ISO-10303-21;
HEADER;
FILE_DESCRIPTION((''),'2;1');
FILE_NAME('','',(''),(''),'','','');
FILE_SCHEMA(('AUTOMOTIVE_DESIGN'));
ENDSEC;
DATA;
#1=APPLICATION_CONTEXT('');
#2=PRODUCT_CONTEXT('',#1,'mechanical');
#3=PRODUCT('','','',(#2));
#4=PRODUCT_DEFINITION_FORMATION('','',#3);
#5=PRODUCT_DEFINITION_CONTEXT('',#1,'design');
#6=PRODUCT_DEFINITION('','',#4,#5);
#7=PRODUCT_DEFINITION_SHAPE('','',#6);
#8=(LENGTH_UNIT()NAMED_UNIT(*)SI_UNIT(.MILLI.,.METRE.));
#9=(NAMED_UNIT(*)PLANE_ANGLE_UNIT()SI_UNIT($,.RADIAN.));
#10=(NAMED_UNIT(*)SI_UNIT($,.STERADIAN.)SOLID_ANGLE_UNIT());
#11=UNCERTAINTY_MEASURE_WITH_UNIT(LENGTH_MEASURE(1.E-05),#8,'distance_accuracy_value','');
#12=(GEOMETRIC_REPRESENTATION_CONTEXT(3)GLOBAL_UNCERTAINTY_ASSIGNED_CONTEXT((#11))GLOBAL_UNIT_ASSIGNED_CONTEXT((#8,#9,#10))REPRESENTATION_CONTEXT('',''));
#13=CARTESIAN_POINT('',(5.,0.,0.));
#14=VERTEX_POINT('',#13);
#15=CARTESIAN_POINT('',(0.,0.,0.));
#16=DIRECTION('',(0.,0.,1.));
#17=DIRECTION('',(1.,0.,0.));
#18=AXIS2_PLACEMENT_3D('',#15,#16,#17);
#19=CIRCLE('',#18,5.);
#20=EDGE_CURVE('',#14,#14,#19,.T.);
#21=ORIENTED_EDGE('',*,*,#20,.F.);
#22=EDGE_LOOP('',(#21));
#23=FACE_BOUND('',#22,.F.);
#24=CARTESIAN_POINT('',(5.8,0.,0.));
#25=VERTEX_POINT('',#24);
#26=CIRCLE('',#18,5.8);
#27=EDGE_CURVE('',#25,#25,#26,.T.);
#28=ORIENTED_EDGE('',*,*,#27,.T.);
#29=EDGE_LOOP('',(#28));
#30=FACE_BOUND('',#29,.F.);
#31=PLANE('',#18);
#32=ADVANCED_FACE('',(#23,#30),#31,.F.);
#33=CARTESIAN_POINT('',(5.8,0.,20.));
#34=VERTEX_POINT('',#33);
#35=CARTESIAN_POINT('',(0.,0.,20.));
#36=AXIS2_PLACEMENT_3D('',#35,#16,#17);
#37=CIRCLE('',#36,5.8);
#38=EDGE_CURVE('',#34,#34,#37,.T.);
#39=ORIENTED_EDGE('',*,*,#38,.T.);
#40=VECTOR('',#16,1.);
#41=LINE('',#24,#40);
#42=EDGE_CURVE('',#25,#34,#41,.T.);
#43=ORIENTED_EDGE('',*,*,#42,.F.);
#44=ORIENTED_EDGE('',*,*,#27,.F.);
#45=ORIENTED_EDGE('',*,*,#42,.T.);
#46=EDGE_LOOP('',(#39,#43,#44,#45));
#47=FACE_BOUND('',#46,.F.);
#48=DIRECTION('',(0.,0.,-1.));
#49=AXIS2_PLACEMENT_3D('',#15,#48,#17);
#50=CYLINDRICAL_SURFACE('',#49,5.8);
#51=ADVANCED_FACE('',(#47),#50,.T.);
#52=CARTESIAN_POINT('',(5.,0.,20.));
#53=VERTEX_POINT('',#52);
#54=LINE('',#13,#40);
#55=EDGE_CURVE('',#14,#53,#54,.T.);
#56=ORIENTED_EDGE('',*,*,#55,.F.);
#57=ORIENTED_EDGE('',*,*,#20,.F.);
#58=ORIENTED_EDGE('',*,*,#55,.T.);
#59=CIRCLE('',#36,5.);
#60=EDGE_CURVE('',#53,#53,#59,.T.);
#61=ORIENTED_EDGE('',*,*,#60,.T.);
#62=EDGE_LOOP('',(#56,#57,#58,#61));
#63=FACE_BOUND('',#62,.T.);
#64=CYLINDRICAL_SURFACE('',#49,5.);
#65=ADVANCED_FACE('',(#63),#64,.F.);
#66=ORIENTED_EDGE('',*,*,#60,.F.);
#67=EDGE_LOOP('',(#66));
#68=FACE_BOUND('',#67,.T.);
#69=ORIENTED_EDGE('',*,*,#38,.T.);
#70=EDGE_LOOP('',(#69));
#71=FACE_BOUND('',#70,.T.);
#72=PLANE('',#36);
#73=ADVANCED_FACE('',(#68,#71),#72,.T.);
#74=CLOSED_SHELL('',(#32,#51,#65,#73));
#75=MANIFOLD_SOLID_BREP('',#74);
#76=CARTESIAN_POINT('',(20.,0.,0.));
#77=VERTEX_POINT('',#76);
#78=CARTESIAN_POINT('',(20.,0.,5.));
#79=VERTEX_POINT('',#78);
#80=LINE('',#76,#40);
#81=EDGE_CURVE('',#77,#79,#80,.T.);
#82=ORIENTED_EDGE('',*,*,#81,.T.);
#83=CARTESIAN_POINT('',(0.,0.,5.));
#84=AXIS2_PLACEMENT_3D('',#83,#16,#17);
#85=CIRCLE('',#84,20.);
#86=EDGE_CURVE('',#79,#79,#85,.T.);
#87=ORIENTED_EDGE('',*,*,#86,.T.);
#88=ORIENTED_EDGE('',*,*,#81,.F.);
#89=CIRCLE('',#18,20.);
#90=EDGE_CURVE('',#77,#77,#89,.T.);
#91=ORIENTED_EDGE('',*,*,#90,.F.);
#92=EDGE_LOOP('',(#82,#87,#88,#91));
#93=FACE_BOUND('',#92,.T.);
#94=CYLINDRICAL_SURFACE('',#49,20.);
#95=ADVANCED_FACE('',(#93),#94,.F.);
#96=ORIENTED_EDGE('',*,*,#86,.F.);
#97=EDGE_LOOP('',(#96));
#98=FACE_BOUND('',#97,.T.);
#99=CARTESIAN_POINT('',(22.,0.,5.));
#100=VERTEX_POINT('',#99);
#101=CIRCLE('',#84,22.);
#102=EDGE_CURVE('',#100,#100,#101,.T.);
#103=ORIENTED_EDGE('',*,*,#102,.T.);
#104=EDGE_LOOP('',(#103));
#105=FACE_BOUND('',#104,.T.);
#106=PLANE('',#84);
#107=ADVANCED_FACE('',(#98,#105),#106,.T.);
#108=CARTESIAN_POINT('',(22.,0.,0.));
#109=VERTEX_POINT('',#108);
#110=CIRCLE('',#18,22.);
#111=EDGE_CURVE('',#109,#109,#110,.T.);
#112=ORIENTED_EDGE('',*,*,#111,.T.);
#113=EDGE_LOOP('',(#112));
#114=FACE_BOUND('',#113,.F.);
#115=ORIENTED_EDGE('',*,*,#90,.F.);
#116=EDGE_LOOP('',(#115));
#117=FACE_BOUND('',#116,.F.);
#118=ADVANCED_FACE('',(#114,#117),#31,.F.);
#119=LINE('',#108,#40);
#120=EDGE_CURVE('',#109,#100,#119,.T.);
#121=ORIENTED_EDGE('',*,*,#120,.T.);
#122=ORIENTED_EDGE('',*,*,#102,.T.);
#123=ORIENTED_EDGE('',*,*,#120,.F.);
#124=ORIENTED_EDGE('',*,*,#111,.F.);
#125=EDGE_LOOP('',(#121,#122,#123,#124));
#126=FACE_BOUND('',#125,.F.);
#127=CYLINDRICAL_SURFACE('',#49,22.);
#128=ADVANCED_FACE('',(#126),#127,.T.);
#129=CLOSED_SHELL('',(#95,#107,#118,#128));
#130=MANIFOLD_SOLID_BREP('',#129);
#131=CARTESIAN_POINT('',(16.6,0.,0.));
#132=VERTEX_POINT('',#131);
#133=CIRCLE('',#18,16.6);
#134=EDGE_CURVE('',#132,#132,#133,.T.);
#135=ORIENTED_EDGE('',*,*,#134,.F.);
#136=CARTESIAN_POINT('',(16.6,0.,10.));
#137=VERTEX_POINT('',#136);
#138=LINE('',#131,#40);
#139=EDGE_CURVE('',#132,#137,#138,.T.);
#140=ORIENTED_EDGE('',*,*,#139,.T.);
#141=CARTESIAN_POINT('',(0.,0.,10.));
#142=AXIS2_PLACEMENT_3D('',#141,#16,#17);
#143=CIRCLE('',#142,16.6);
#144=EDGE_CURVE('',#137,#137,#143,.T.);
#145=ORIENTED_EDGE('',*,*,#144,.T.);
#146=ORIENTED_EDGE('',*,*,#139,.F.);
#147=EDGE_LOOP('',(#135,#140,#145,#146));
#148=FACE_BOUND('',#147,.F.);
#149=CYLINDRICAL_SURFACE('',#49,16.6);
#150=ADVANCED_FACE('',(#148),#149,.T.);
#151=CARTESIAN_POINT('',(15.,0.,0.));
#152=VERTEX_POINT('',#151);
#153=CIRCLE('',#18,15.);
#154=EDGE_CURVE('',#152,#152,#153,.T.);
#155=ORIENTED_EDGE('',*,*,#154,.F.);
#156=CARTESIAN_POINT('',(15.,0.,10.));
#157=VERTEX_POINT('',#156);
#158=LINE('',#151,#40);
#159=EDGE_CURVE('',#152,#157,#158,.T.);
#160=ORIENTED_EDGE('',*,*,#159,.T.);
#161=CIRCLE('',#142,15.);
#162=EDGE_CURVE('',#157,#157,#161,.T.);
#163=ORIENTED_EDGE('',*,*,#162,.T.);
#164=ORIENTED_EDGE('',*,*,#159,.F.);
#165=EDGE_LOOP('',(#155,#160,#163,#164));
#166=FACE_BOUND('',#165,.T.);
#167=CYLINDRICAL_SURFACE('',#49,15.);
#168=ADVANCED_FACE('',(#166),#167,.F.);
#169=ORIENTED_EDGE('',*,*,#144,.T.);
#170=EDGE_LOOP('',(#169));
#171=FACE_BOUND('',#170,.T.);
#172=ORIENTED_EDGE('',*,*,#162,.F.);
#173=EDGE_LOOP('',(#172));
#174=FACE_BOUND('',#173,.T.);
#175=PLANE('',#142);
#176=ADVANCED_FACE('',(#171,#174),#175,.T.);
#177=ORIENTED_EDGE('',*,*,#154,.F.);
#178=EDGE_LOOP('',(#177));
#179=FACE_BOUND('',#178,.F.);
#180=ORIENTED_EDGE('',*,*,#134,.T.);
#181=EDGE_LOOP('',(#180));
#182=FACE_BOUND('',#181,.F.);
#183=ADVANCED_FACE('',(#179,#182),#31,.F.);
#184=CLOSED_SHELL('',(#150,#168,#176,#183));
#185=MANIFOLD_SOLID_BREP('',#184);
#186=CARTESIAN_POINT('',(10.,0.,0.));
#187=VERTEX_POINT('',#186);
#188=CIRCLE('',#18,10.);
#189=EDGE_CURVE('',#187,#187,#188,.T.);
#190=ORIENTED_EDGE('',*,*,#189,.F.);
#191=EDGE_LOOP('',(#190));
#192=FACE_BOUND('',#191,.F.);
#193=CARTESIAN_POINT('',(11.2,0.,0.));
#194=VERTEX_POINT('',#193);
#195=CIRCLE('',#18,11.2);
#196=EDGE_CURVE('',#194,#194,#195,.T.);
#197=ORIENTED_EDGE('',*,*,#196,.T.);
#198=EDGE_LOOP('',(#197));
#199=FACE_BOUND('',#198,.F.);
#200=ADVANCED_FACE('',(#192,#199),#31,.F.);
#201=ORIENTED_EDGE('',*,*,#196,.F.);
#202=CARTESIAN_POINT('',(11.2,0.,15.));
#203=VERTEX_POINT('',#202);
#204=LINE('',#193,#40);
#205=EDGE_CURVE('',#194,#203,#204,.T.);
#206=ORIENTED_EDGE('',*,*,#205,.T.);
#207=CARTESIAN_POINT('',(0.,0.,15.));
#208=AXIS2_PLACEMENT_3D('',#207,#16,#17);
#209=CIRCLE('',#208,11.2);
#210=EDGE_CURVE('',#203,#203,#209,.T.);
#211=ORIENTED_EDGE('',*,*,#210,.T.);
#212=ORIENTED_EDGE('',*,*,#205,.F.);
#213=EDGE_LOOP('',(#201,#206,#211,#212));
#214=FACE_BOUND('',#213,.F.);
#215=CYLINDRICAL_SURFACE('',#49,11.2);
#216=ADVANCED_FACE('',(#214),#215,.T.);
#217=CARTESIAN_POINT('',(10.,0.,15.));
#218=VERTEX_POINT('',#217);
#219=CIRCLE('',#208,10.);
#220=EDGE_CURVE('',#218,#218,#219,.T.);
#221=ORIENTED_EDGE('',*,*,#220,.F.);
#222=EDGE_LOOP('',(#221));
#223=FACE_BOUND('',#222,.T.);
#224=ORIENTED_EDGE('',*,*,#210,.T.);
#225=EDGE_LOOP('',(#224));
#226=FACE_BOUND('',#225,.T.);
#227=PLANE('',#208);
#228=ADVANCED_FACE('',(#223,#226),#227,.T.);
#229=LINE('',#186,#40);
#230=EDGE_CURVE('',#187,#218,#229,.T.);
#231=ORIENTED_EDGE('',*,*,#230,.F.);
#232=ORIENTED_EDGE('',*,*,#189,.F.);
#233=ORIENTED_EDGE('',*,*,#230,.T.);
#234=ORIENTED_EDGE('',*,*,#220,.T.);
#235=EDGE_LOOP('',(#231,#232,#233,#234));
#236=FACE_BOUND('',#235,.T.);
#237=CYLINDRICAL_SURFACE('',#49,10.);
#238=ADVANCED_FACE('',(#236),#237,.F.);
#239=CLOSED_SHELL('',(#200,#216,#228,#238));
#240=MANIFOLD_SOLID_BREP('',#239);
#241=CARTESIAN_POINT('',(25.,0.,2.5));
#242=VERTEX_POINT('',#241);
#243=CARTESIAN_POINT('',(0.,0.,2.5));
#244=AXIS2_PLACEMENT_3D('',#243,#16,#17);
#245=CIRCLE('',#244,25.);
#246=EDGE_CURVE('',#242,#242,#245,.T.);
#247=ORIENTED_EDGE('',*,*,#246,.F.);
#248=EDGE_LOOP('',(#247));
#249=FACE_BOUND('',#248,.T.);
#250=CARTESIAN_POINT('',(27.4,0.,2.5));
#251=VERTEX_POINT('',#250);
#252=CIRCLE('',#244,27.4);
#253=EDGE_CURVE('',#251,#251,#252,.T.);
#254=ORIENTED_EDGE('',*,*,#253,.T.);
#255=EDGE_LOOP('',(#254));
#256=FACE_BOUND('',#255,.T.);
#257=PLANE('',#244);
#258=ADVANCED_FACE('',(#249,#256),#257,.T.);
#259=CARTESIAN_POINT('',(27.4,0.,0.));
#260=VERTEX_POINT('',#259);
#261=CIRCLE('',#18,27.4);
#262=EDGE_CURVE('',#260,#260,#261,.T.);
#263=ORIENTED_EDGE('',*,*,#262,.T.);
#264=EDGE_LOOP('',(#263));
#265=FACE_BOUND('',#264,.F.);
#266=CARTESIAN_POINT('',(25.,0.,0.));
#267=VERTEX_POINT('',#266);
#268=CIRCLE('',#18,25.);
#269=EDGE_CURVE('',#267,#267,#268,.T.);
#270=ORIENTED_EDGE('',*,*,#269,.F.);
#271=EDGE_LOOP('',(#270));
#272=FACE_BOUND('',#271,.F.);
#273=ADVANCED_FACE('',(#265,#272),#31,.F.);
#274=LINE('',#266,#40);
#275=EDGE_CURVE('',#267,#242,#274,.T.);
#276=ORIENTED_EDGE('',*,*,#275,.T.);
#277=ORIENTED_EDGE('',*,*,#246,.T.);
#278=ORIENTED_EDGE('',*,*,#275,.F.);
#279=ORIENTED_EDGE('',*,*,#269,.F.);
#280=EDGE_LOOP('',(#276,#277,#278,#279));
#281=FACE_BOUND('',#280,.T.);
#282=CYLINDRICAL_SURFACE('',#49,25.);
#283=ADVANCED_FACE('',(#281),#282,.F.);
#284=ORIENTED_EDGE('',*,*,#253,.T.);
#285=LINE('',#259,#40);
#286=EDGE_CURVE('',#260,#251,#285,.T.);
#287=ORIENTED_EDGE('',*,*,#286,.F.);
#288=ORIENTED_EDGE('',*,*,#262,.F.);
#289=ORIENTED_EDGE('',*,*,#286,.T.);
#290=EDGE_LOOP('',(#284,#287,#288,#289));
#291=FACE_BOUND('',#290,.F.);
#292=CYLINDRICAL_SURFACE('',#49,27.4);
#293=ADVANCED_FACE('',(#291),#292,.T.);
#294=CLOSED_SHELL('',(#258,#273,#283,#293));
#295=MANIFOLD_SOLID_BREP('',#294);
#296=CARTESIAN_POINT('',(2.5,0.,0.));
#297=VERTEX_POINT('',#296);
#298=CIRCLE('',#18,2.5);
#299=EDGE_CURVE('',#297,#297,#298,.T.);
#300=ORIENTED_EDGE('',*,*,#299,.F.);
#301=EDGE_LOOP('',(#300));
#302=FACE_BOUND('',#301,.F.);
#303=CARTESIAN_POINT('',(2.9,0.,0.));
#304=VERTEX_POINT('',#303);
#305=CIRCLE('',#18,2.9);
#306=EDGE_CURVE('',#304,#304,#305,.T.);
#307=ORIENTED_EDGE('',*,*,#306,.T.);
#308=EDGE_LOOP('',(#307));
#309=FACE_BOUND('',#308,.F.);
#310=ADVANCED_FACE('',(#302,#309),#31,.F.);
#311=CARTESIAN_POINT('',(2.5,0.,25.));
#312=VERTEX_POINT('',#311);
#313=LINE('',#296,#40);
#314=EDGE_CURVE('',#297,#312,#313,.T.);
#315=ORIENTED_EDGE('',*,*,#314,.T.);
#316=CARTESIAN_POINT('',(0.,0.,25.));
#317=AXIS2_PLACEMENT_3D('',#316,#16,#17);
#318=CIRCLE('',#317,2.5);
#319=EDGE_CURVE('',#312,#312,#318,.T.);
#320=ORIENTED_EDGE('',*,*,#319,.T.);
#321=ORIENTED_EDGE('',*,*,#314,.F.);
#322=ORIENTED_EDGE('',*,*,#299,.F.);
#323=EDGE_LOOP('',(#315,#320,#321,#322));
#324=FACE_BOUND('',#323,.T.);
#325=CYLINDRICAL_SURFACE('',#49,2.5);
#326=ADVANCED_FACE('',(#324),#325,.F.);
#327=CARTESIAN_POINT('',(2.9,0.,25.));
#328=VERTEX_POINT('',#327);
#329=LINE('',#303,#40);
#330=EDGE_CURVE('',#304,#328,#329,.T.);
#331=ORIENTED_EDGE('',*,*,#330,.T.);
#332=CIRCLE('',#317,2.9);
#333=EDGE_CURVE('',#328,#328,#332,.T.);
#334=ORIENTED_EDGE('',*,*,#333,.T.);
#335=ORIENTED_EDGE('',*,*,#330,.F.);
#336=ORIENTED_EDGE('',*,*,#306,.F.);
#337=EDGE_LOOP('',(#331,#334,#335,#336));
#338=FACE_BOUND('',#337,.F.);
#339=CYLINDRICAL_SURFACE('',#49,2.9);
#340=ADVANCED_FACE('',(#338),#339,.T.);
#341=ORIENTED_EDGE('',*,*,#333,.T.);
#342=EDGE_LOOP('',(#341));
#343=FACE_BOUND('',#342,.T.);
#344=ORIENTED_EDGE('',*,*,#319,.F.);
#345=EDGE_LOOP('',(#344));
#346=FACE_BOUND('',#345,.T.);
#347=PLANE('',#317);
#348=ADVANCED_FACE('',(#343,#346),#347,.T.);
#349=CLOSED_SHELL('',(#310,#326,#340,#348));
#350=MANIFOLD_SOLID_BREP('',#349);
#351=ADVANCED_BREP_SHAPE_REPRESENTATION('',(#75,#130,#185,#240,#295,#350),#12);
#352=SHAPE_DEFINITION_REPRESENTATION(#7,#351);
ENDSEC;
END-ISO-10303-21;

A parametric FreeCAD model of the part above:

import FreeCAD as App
import Part
import Sketcher

doc = App.newDocument("Part")
body = doc.addObject("PartDesign::Body", "Body")

# Sketch on XY plane
sketch1 = body.newObject("Sketcher::SketchObject", "Sketch")
sketch1.AttachmentSupport = (doc.getObject("XY_Plane"), [""])
sketch1.MapMode = "FlatFace"
sketch1.addGeometry([
    Part.Circle(App.Vector(0, 0, 0), App.Vector(0, 0, 1), 2.9),
    Part.Circle(App.Vector(0, 0, 0), App.Vector(0, 0, 1), 2.5),
], False)
sketch1.addConstraint([
    Sketcher.Constraint("Coincident", 0, 3, -1, 1),
    Sketcher.Constraint("Coincident", 1, 3, -1, 1),
    Sketcher.Constraint("Diameter", 1, 5.0),
    Sketcher.Constraint("Diameter", 0, 5.8),
])
pad1 = body.newObject("PartDesign::Pad", "Pad")
pad1.Profile = sketch1
pad1.Length = 25
body2 = doc.addObject("PartDesign::Body", "Body001")

# Sketch on XY plane
sketch2 = body2.newObject("Sketcher::SketchObject", "Sketch001")
sketch2.AttachmentSupport = (doc.getObject("XY_Plane001"), [""])
sketch2.MapMode = "FlatFace"
sketch2.addGeometry([
    Part.Circle(App.Vector(0, 0, 0), App.Vector(0, 0, 1), 5.8),
    Part.Circle(App.Vector(0, 0, 0), App.Vector(0, 0, 1), 5),
], False)
sketch2.addConstraint([
    Sketcher.Constraint("Coincident", 0, 3, -1, 1),
    Sketcher.Constraint("Coincident", 1, 3, -1, 1),
    Sketcher.Constraint("Diameter", 1, 10.0),
    Sketcher.Constraint("Diameter", 0, 11.6),
])
pad2 = body2.newObject("PartDesign::Pad", "Pad001")
pad2.Profile = sketch2
pad2.Length = 20
body3 = doc.addObject("PartDesign::Body", "Body002")

# Sketch on XY plane
sketch3 = body3.newObject("Sketcher::SketchObject", "Sketch002")
sketch3.AttachmentSupport = (doc.getObject("XY_Plane002"), [""])
sketch3.MapMode = "FlatFace"
sketch3.addGeometry([
    Part.Circle(App.Vector(0, 0, 0), App.Vector(0, 0, 1), 11.2),
    Part.Circle(App.Vector(0, 0, 0), App.Vector(0, 0, 1), 10),
], False)
sketch3.addConstraint([
    Sketcher.Constraint("Coincident", 0, 3, -1, 1),
    Sketcher.Constraint("Coincident", 1, 3, -1, 1),
    Sketcher.Constraint("Diameter", 1, 20.0),
    Sketcher.Constraint("Diameter", 0, 22.4),
])
pad3 = body3.newObject("PartDesign::Pad", "Pad002")
pad3.Profile = sketch3
pad3.Length = 15
body4 = doc.addObject("PartDesign::Body", "Body003")

# Sketch on XY plane
sketch4 = body4.newObject("Sketcher::SketchObject", "Sketch003")
sketch4.AttachmentSupport = (doc.getObject("XY_Plane003"), [""])
sketch4.MapMode = "FlatFace"
sketch4.addGeometry([
    Part.Circle(App.Vector(0, 0, 0), App.Vector(0, 0, 1), 16.6),
    Part.Circle(App.Vector(0, 0, 0), App.Vector(0, 0, 1), 15),
], False)
sketch4.addConstraint([
    Sketcher.Constraint("Coincident", 0, 3, -1, 1),
    Sketcher.Constraint("Coincident", 1, 3, -1, 1),
    Sketcher.Constraint("Diameter", 1, 30.0),
    Sketcher.Constraint("Diameter", 0, 33.2),
])
pad4 = body4.newObject("PartDesign::Pad", "Pad003")
pad4.Profile = sketch4
pad4.Length = 10
body5 = doc.addObject("PartDesign::Body", "Body004")

# Sketch on XY plane
sketch5 = body5.newObject("Sketcher::SketchObject", "Sketch004")
sketch5.AttachmentSupport = (doc.getObject("XY_Plane004"), [""])
sketch5.MapMode = "FlatFace"
sketch5.addGeometry([
    Part.Circle(App.Vector(0, 0, 0), App.Vector(0, 0, 1), 22),
    Part.Circle(App.Vector(0, 0, 0), App.Vector(0, 0, 1), 20),
], False)
sketch5.addConstraint([
    Sketcher.Constraint("Coincident", 0, 3, -1, 1),
    Sketcher.Constraint("Coincident", 1, 3, -1, 1),
    Sketcher.Constraint("Diameter", 0, 44.0),
    Sketcher.Constraint("Diameter", 1, 40.0),
])
pad5 = body5.newObject("PartDesign::Pad", "Pad004")
pad5.Profile = sketch5
pad5.Length = 5
body6 = doc.addObject("PartDesign::Body", "Body005")

# Sketch on XY plane
sketch6 = body6.newObject("Sketcher::SketchObject", "Sketch005")
sketch6.AttachmentSupport = (doc.getObject("XY_Plane005"), [""])
sketch6.MapMode = "FlatFace"
sketch6.addGeometry([
    Part.Circle(App.Vector(0, 0, 0), App.Vector(0, 0, 1), 27.4),
    Part.Circle(App.Vector(0, 0, 0), App.Vector(0, 0, 1), 25),
], False)
sketch6.addConstraint([
    Sketcher.Constraint("Coincident", 0, 3, -1, 1),
    Sketcher.Constraint("Coincident", 1, 3, -1, 1),
    Sketcher.Constraint("Diameter", 1, 50.0),
    Sketcher.Constraint("Diameter", 0, 54.8),
])
pad6 = body6.newObject("PartDesign::Pad", "Pad005")
pad6.Profile = sketch6
pad6.Length = 2.5

doc.recompute()
